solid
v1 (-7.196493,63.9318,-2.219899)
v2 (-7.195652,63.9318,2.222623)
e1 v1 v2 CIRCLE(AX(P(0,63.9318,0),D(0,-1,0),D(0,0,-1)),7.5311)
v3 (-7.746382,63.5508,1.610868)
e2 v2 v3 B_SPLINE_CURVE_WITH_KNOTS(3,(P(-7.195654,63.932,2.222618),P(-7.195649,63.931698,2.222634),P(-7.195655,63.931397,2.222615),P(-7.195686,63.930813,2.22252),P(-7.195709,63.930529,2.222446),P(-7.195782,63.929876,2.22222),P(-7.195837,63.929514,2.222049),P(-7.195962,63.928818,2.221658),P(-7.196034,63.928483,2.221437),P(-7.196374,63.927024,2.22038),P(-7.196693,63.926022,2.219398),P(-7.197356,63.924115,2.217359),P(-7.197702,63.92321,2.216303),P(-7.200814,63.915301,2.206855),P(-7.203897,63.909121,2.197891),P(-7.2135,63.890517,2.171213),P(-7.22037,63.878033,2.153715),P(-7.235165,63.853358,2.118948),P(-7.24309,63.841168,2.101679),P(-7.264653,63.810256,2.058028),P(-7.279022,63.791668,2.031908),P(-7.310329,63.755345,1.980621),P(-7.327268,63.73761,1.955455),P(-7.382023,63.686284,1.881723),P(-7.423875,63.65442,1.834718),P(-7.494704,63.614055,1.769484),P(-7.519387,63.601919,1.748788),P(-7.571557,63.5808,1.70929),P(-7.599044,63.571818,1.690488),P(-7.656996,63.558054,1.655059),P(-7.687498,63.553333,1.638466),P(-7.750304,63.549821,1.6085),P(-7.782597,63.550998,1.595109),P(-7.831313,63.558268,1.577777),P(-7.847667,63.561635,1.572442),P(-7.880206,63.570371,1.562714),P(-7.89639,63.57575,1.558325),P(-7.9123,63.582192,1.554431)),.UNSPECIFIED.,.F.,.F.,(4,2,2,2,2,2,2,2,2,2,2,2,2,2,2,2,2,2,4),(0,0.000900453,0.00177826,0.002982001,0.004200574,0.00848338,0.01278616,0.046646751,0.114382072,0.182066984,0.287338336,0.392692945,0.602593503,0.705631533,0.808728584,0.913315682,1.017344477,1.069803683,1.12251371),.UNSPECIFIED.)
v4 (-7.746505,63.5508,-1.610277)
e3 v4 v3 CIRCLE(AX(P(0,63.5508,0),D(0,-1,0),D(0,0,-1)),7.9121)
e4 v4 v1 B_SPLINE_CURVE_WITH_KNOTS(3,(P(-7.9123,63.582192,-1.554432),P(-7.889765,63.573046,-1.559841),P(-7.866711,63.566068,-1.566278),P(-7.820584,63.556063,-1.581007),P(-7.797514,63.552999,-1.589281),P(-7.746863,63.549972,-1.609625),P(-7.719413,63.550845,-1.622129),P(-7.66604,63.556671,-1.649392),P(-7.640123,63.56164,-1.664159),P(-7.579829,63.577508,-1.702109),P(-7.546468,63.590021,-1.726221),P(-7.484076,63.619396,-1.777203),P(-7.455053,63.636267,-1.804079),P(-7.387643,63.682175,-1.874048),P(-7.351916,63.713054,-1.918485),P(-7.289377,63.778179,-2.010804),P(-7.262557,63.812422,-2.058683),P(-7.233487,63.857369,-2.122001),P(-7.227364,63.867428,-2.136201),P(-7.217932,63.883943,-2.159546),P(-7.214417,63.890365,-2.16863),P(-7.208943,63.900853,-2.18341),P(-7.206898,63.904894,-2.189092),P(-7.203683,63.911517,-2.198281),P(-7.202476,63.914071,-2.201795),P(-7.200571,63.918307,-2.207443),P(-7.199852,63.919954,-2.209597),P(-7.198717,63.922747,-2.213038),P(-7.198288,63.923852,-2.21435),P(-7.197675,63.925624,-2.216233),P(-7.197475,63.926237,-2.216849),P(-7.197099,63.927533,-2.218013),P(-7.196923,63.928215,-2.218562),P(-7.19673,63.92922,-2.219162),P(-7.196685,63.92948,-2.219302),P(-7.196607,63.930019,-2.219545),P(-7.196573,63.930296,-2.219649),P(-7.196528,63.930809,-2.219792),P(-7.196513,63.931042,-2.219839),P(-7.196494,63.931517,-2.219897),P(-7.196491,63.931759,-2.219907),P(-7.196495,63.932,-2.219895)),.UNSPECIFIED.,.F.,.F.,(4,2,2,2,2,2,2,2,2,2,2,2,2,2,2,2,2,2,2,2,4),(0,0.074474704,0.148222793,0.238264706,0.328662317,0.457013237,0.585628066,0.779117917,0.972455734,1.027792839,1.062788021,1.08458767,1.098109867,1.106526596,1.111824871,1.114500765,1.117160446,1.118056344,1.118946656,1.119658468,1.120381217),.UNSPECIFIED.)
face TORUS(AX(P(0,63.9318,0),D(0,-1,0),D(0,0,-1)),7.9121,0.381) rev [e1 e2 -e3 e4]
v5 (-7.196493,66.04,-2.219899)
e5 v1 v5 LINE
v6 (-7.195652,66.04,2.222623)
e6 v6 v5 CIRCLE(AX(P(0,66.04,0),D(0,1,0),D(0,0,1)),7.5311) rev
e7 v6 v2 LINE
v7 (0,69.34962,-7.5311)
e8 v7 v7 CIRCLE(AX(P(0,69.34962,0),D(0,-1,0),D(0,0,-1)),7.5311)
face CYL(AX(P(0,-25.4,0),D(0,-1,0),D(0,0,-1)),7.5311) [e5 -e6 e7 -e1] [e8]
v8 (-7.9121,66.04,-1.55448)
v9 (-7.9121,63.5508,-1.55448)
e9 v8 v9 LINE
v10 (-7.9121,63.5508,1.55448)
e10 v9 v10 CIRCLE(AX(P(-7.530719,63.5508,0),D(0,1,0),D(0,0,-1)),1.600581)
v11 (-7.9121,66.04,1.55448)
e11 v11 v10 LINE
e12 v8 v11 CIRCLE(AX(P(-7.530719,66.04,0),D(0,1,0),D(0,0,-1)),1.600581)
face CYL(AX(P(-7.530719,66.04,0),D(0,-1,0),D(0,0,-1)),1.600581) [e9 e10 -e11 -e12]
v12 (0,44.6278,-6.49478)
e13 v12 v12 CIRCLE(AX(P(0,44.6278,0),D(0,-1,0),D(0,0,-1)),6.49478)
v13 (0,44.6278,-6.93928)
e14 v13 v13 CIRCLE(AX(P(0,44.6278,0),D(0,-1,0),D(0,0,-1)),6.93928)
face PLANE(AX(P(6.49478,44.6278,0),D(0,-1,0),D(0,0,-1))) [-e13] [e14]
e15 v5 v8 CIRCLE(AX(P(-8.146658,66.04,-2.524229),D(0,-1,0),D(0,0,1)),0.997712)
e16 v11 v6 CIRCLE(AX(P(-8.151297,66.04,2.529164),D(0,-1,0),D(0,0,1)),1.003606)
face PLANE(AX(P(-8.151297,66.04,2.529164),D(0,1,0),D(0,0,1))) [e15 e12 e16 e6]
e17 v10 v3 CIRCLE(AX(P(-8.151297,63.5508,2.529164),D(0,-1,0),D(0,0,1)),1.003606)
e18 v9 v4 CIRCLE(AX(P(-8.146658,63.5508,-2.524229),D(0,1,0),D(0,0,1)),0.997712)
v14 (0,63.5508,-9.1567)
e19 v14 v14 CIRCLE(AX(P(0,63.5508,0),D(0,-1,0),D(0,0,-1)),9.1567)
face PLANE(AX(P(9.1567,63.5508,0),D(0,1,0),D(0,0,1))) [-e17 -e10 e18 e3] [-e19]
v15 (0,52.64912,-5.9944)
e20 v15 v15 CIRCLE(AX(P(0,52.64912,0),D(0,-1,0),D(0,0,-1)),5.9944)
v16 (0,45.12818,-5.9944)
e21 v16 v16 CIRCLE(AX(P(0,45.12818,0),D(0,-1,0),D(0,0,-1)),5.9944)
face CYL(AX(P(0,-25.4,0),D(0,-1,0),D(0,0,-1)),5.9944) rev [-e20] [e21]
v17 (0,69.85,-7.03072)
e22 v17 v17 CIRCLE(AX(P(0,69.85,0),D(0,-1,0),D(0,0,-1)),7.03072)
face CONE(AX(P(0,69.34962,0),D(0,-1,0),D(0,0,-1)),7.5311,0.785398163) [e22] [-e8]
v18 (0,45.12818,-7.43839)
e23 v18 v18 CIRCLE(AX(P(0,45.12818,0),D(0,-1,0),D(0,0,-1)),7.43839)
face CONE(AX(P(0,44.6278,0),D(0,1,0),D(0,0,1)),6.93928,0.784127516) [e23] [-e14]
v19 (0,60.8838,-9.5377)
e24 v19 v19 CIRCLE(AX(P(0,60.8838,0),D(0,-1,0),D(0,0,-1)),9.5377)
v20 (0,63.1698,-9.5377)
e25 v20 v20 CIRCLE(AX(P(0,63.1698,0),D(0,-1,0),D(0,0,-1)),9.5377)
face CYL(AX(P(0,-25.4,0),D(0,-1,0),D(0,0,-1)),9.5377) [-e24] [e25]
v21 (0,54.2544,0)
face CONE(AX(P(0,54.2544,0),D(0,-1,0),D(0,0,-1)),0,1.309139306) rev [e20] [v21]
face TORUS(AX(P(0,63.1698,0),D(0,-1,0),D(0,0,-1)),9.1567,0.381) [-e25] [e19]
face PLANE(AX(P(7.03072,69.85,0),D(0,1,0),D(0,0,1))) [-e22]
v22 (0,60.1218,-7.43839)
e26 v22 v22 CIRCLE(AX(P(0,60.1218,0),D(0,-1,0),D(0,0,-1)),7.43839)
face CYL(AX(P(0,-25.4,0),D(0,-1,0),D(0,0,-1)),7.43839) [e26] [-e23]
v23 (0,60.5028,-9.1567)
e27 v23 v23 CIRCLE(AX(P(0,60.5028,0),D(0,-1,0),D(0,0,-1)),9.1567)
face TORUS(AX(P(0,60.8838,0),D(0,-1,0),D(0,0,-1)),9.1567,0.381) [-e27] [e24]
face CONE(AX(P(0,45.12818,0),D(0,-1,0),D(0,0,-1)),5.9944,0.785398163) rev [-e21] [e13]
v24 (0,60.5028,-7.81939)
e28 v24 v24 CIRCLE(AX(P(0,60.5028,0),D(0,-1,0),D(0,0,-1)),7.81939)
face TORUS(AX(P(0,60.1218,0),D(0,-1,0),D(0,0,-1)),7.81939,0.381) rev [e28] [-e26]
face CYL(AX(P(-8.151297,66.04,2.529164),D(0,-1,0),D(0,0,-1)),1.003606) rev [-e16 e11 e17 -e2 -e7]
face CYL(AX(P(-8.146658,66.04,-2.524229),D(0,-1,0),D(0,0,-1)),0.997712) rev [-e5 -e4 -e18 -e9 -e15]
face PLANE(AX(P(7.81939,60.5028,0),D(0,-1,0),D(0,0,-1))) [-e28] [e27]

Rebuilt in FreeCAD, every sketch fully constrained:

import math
import FreeCAD as App
import Part
import Sketcher
Q = App.Units.Quantity

doc = App.newDocument("Part")
body = doc.addObject("PartDesign::Body", "Body")

sketch1 = body.newObject("Sketcher::SketchObject", "Sketch")
sketch1.AttachmentSupport = (doc.getObject("XY_Plane"), [""])
sketch1.MapMode = "FlatFace"
sketch1.addGeometry([
    Part.LineSegment(App.Vector(0, 54.25, 0), App.Vector(5.99, 52.65, 0)),
    Part.LineSegment(App.Vector(5.99, 52.65, 0), App.Vector(5.99, 45.13, 0)),
    Part.LineSegment(App.Vector(5.99, 45.13, 0), App.Vector(6.49, 44.63, 0)),
    Part.LineSegment(App.Vector(6.49, 44.63, 0), App.Vector(6.94, 44.63, 0)),
    Part.LineSegment(App.Vector(6.94, 44.63, 0), App.Vector(7.44, 45.13, 0)),
    Part.LineSegment(App.Vector(7.44, 45.13, 0), App.Vector(7.44, 60.12, 0)),
    Part.ArcOfCircle(Part.Circle(App.Vector(7.82, 60.12, 0), App.Vector(0, 0, 1), 0.38), math.radians(90), math.radians(180)),
    Part.LineSegment(App.Vector(7.82, 60.5, 0), App.Vector(9.16, 60.5, 0)),
    Part.ArcOfCircle(Part.Circle(App.Vector(9.16, 60.88, 0), App.Vector(0, 0, 1), 0.38), math.radians(-90), math.radians(0)),
    Part.LineSegment(App.Vector(9.54, 60.88, 0), App.Vector(9.54, 63.17, 0)),
    Part.ArcOfCircle(Part.Circle(App.Vector(9.16, 63.17, 0), App.Vector(0, 0, 1), 0.38), math.radians(0), math.radians(90)),
    Part.LineSegment(App.Vector(9.16, 63.55, 0), App.Vector(7.91, 63.55, 0)),
    Part.ArcOfCircle(Part.Circle(App.Vector(7.91, 63.93, 0), App.Vector(0, 0, 1), 0.38), math.radians(180), math.radians(270)),
    Part.LineSegment(App.Vector(7.53, 63.93, 0), App.Vector(7.53, 69.35, 0)),
    Part.LineSegment(App.Vector(7.53, 69.35, 0), App.Vector(7.03, 69.85, 0)),
    Part.LineSegment(App.Vector(7.03, 69.85, 0), App.Vector(0, 69.85, 0)),
    Part.LineSegment(App.Vector(0, 69.85, 0), App.Vector(0, 54.25, 0)),
], False)
sketch1.addConstraint([
    Sketcher.Constraint("Coincident", 0, 2, 1, 1),
    Sketcher.Constraint("Coincident", 1, 2, 2, 1),
    Sketcher.Constraint("Coincident", 2, 2, 3, 1),
    Sketcher.Constraint("Coincident", 3, 2, 4, 1),
    Sketcher.Constraint("Coincident", 4, 2, 5, 1),
    Sketcher.Constraint("Tangent", 5, 2, 6, 2),
    Sketcher.Constraint("Tangent", 6, 1, 7, 1),
    Sketcher.Constraint("Tangent", 7, 2, 8, 1),
    Sketcher.Constraint("Tangent", 8, 2, 9, 1),
    Sketcher.Constraint("Tangent", 9, 2, 10, 1),
    Sketcher.Constraint("Tangent", 10, 2, 11, 1),
    Sketcher.Constraint("Tangent", 11, 2, 12, 2),
    Sketcher.Constraint("Tangent", 12, 1, 13, 1),
    Sketcher.Constraint("Coincident", 13, 2, 14, 1),
    Sketcher.Constraint("Coincident", 14, 2, 15, 1),
    Sketcher.Constraint("Coincident", 15, 2, 16, 1),
    Sketcher.Constraint("Coincident", 16, 2, 0, 1),
    Sketcher.Constraint("Vertical", 1),
    Sketcher.Constraint("Horizontal", 3),
    Sketcher.Constraint("Vertical", 5),
    Sketcher.Constraint("Horizontal", 7),
    Sketcher.Constraint("Vertical", 9),
    Sketcher.Constraint("Horizontal", 11),
    Sketcher.Constraint("Vertical", 13),
    Sketcher.Constraint("Horizontal", 15),
    Sketcher.Constraint("Vertical", 16),
    Sketcher.Constraint("Equal", 6, 8),
    Sketcher.Constraint("Equal", 8, 10),
    Sketcher.Constraint("Equal", 10, 12),
    Sketcher.Constraint("PointOnObject", 15, 2, -2),
    Sketcher.Constraint("Parallel", 2, 14),
    Sketcher.Constraint("Horizontal", 1, 2, 4, 2),
    Sketcher.Constraint("Equal", 2, 14),
    Sketcher.Constraint("Angle", 2, Q("-45 deg")),
    Sketcher.Constraint("Radius", 6, Q("0.015 in")),
    Sketcher.Constraint("DistanceY", 9, 1, 9, 2, Q("0.09 in")),
    Sketcher.Constraint("DistanceX", 11, 2, 11, 1, Q("0.049 in")),
    Sketcher.Constraint("DistanceY", 16, 2, 16, 1, Q("0.614 in")),
    Sketcher.Constraint("DistanceY", -1, 1, 14, 2, Q("2.75 in")),
    Sketcher.Constraint("DistanceY", 2, 2, 6, 3, Q("0.61 in")),
    Sketcher.Constraint("DistanceX", 3, 1, 3, 2, Q("0.0175 in")),
    Sketcher.Constraint("DistanceX", 15, 2, 15, 1, Q("0.2768 in")),
    Sketcher.Constraint("DistanceY", 1, 2, 1, 1, Q("0.2961 in")),
    Sketcher.Constraint("DistanceY", 5, 1, 5, 2, Q("0.5903 in")),
    Sketcher.Constraint("DistanceY", 13, 1, 13, 2, Q("0.2133 in")),
    Sketcher.Constraint("DistanceX", -1, 1, 0, 2, Q("0.236 in")),
    Sketcher.Constraint("DistanceX", 7, 1, 7, 2, 1.33731),
])
revolution = body.newObject("PartDesign::Revolution", "Revolution")
revolution.Profile = sketch1
revolution.ReferenceAxis = (sketch1, ["V_Axis"])
revolution.Angle = 360

sketch2 = body.newObject("Sketcher::SketchObject", "Sketch001")
sketch2.AttachmentSupport = (doc.getObject("XZ_Plane"), [""])
sketch2.MapMode = "FlatFace"
sketch2.AttachmentOffset = App.Placement(App.Vector(0, 0, -2.502 * 25.4), App.Rotation())
sketch2.addGeometry([
    Part.LineSegment(App.Vector(-7.2, 2.2, 0), App.Vector(-7.2, -2.2, 0)),
    Part.ArcOfCircle(Part.Circle(App.Vector(-8.1, -2.5, 0), App.Vector(0, 0, 1), 1), math.radians(17), math.radians(76)),
    Part.ArcOfCircle(Part.Circle(App.Vector(-7.5, 0, 0), App.Vector(0, 0, 1), 1.6), math.radians(104), math.radians(256)),
    Part.ArcOfCircle(Part.Circle(App.Vector(-8.2, 2.5, 0), App.Vector(0, 0, 1), 1), math.radians(-76), math.radians(-17)),
], False)
sketch2.addConstraint([
    Sketcher.Constraint("Coincident", 0, 2, 1, 1),
    Sketcher.Constraint("Coincident", 1, 2, 2, 2),
    Sketcher.Constraint("Coincident", 2, 1, 3, 1),
    Sketcher.Constraint("Coincident", 3, 2, 0, 1),
    Sketcher.Constraint("Vertical", 0),
    Sketcher.Constraint("Symmetric", 1, 2, 2, 1, -1),
    Sketcher.Constraint("DistanceY", 0, 2, 0, 1, Q("0.1756 in")),
    Sketcher.Constraint("Radius", 2, 1.600581),
    Sketcher.Constraint("DistanceY", 0, 2, 2, 1, Q("0.149 in")),
    Sketcher.Constraint("DistanceY", 1, 2, 3, 2, Q("0.149 in")),
    Sketcher.Constraint("DistanceX", 0, 2, -1, 1, Q("0.2832 in")),
    Sketcher.Constraint("DistanceX", 1, 2, -1, 1, Q("0.3115 in")),
    Sketcher.Constraint("Radius", 1, 0.997712),
    Sketcher.Constraint("Radius", 3, 1.003606),
])
pad1 = body.newObject("PartDesign::Pad", "Pad")
pad1.Profile = sketch2
pad1.Length = Q("0.098 in")
pad1.Reversed = True

doc.recompute()
